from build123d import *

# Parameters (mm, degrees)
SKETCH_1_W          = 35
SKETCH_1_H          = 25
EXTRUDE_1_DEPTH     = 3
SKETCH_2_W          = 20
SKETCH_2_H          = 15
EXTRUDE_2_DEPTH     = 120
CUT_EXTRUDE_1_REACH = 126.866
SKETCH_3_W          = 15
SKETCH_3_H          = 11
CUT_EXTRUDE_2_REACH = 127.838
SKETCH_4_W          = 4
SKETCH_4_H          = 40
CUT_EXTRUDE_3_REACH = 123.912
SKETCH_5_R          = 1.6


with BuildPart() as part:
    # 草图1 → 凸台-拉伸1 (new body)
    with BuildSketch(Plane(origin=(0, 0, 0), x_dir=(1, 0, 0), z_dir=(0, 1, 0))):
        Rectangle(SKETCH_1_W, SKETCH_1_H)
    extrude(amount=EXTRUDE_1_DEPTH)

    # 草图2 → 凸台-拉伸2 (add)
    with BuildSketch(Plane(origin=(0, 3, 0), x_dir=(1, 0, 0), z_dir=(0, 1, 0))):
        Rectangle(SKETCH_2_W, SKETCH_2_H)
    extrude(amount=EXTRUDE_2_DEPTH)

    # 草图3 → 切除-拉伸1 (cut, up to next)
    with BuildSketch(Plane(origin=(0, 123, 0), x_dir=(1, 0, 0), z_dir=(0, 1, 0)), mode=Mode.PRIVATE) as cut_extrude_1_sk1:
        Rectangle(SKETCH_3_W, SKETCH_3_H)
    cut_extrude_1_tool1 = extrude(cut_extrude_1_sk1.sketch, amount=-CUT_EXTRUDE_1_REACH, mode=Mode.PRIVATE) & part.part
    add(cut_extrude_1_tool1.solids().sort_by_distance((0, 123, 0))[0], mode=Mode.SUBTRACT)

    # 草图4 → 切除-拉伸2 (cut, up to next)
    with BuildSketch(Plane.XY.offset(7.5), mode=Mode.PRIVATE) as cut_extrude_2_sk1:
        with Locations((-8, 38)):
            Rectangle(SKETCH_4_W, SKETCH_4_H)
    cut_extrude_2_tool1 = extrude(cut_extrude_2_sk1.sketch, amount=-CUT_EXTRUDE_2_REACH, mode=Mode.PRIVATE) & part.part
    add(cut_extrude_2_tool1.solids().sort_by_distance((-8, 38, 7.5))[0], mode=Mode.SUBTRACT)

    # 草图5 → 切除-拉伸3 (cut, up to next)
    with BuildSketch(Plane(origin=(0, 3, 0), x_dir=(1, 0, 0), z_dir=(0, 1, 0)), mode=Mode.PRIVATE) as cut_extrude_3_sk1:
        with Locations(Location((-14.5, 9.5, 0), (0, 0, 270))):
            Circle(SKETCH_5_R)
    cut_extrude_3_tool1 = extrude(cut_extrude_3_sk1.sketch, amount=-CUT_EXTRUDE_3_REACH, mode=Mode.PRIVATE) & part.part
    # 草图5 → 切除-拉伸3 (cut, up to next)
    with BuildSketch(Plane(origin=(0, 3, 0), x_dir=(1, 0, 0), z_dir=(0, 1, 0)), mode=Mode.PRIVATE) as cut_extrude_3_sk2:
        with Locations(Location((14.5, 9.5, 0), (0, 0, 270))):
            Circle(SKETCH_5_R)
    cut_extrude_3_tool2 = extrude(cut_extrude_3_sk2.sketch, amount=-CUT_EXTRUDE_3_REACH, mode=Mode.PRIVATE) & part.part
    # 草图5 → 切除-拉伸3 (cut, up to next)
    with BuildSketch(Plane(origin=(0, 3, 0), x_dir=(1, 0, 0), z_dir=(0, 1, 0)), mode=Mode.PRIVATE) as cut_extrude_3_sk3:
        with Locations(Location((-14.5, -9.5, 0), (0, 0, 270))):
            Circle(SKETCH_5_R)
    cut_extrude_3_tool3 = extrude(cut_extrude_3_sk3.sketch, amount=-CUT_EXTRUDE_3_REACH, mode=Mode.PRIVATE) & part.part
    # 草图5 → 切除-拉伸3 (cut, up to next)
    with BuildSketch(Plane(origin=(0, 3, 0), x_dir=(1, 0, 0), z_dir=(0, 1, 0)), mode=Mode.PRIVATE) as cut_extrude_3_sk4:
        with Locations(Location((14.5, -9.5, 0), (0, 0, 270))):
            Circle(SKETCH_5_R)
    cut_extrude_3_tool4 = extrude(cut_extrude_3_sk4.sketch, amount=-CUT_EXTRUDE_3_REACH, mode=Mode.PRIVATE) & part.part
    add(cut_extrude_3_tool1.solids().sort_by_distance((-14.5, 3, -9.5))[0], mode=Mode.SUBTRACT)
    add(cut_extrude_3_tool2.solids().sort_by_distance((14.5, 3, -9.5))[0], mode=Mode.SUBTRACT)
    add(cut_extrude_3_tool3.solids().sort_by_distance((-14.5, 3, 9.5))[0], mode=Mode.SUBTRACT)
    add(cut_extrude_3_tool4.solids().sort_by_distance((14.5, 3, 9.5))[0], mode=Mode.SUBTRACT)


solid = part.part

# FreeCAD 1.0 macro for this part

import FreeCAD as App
import Part
import Sketcher
Q = App.Units.Quantity

doc = App.newDocument("Part")
body = doc.addObject("PartDesign::Body", "Body")

sketch1 = body.newObject("Sketcher::SketchObject", "Sketch")
sketch1.AttachmentSupport = (doc.getObject("XZ_Plane"), [""])
sketch1.MapMode = "FlatFace"
sketch1.addGeometry([
    Part.LineSegment(App.Vector(-18, -12, 0), App.Vector(-18, 12, 0)),
    Part.LineSegment(App.Vector(-18, 12, 0), App.Vector(18, 12, 0)),
    Part.LineSegment(App.Vector(18, 12, 0), App.Vector(18, -12, 0)),
    Part.LineSegment(App.Vector(18, -12, 0), App.Vector(-18, -12, 0)),
], False)
sketch1.addConstraint([
    Sketcher.Constraint("Coincident", 0, 2, 1, 1),
    Sketcher.Constraint("Coincident", 1, 2, 2, 1),
    Sketcher.Constraint("Coincident", 2, 2, 3, 1),
    Sketcher.Constraint("Coincident", 3, 2, 0, 1),
    Sketcher.Constraint("Vertical", 0),
    Sketcher.Constraint("Horizontal", 1),
    Sketcher.Constraint("Vertical", 2),
    Sketcher.Constraint("Horizontal", 3),
    Sketcher.Constraint("Symmetric", 0, 2, 2, 2, -1, 1),
    Sketcher.Constraint("DistanceX", 1, 1, 1, 2, Q("35 mm")),
    Sketcher.Constraint("DistanceY", 0, 1, 0, 2, Q("25 mm")),
])
pad1 = body.newObject("PartDesign::Pad", "Pad")
pad1.Profile = sketch1
pad1.Length = 3
pad1.Reversed = True

sketch2 = body.newObject("Sketcher::SketchObject", "Sketch001")
sketch2.AttachmentSupport = (doc.getObject("XZ_Plane"), [""])
sketch2.MapMode = "FlatFace"
sketch2.AttachmentOffset = App.Placement(App.Vector(0, 0, -3), App.Rotation())
sketch2.addGeometry([
    Part.LineSegment(App.Vector(-10, -8, 0), App.Vector(-10, 8, 0)),
    Part.LineSegment(App.Vector(-10, 8, 0), App.Vector(10, 8, 0)),
    Part.LineSegment(App.Vector(10, 8, 0), App.Vector(10, -8, 0)),
    Part.LineSegment(App.Vector(10, -8, 0), App.Vector(-10, -8, 0)),
], False)
sketch2.addConstraint([
    Sketcher.Constraint("Coincident", 0, 2, 1, 1),
    Sketcher.Constraint("Coincident", 1, 2, 2, 1),
    Sketcher.Constraint("Coincident", 2, 2, 3, 1),
    Sketcher.Constraint("Coincident", 3, 2, 0, 1),
    Sketcher.Constraint("Vertical", 0),
    Sketcher.Constraint("Horizontal", 1),
    Sketcher.Constraint("Vertical", 2),
    Sketcher.Constraint("Horizontal", 3),
    Sketcher.Constraint("Symmetric", 0, 2, 2, 2, -1, 1),
    Sketcher.Constraint("DistanceX", 1, 1, 1, 2, Q("20 mm")),
    Sketcher.Constraint("DistanceY", 0, 1, 0, 2, Q("15 mm")),
])
pad2 = body.newObject("PartDesign::Pad", "Pad001")
pad2.Profile = sketch2
pad2.Length = 120
pad2.Reversed = True

sketch3 = body.newObject("Sketcher::SketchObject", "Sketch002")
sketch3.AttachmentSupport = (doc.getObject("XZ_Plane"), [""])
sketch3.MapMode = "FlatFace"
sketch3.AttachmentOffset = App.Placement(App.Vector(0, 0, -123), App.Rotation())
sketch3.addGeometry([
    Part.LineSegment(App.Vector(-8, -6, 0), App.Vector(-8, 6, 0)),
    Part.LineSegment(App.Vector(-8, 6, 0), App.Vector(8, 6, 0)),
    Part.LineSegment(App.Vector(8, 6, 0), App.Vector(8, -6, 0)),
    Part.LineSegment(App.Vector(8, -6, 0), App.Vector(-8, -6, 0)),
], False)
sketch3.addConstraint([
    Sketcher.Constraint("Coincident", 0, 2, 1, 1),
    Sketcher.Constraint("Coincident", 1, 2, 2, 1),
    Sketcher.Constraint("Coincident", 2, 2, 3, 1),
    Sketcher.Constraint("Coincident", 3, 2, 0, 1),
    Sketcher.Constraint("Vertical", 0),
    Sketcher.Constraint("Horizontal", 1),
    Sketcher.Constraint("Vertical", 2),
    Sketcher.Constraint("Horizontal", 3),
    Sketcher.Constraint("Symmetric", 0, 2, 2, 2, -1, 1),
    Sketcher.Constraint("DistanceX", 1, 1, 1, 2, Q("15 mm")),
    Sketcher.Constraint("DistanceY", 0, 1, 0, 2, Q("11 mm")),
])
pocket1 = body.newObject("PartDesign::Pocket", "Pocket")
pocket1.Profile = sketch3
pocket1.Type = "UpToFirst"
pocket1.Reversed = True

sketch4 = body.newObject("Sketcher::SketchObject", "Sketch003")
sketch4.AttachmentSupport = (doc.getObject("XY_Plane"), [""])
sketch4.MapMode = "FlatFace"
sketch4.AttachmentOffset = App.Placement(App.Vector(0, 0, 7.5), App.Rotation())
sketch4.addGeometry([
    Part.LineSegment(App.Vector(-10, 58, 0), App.Vector(-10, 18, 0)),
    Part.LineSegment(App.Vector(-10, 18, 0), App.Vector(-6, 18, 0)),
    Part.LineSegment(App.Vector(-6, 18, 0), App.Vector(-6, 58, 0)),
    Part.LineSegment(App.Vector(-6, 58, 0), App.Vector(-10, 58, 0)),
], False)
sketch4.addConstraint([
    Sketcher.Constraint("Coincident", 0, 2, 1, 1),
    Sketcher.Constraint("Coincident", 1, 2, 2, 1),
    Sketcher.Constraint("Coincident", 2, 2, 3, 1),
    Sketcher.Constraint("Coincident", 3, 2, 0, 1),
    Sketcher.Constraint("Vertical", 0),
    Sketcher.Constraint("Horizontal", 1),
    Sketcher.Constraint("Vertical", 2),
    Sketcher.Constraint("Horizontal", 3),
    Sketcher.Constraint("DistanceX", 1, 1, 1, 2, Q("4 mm")),
    Sketcher.Constraint("DistanceY", 0, 2, 0, 1, Q("40 mm")),
    Sketcher.Constraint("DistanceX", 0, 2, -1, 1, Q("10 mm")),
    Sketcher.Constraint("DistanceY", -1, 1, 0, 2, Q("18 mm")),
])
pocket2 = body.newObject("PartDesign::Pocket", "Pocket001")
pocket2.Profile = sketch4
pocket2.Type = "UpToFirst"

sketch5 = body.newObject("Sketcher::SketchObject", "Sketch004")
sketch5.AttachmentSupport = (doc.getObject("XZ_Plane"), [""])
sketch5.MapMode = "FlatFace"
sketch5.AttachmentOffset = App.Placement(App.Vector(0, 0, -3), App.Rotation())
sketch5.addGeometry(Part.Circle(App.Vector(-14.5, -9.5, 0), App.Vector(0, 0, 1), 1.6), False)
sketch5.addConstraint([
    Sketcher.Constraint("Diameter", 0, Q("3.2 mm")),
    Sketcher.Constraint("DistanceX", 0, 3, -1, 1, Q("14.5 mm")),
    Sketcher.Constraint("DistanceY", 0, 3, -1, 1, Q("9.5 mm")),
])
pocket3 = body.newObject("PartDesign::Pocket", "Pocket002")
pocket3.Profile = sketch5
pocket3.Type = "UpToFirst"
pocket3.Reversed = True

sketch6 = body.newObject("Sketcher::SketchObject", "Sketch005")
sketch6.AttachmentSupport = (doc.getObject("XZ_Plane"), [""])
sketch6.MapMode = "FlatFace"
sketch6.AttachmentOffset = App.Placement(App.Vector(0, 0, -3), App.Rotation())
sketch6.addGeometry(Part.Circle(App.Vector(14.5, -9.5, 0), App.Vector(0, 0, 1), 1.6), False)
sketch6.addConstraint([
    Sketcher.Constraint("Diameter", 0, Q("3.2 mm")),
    Sketcher.Constraint("DistanceX", -1, 1, 0, 3, Q("14.5 mm")),
    Sketcher.Constraint("DistanceY", 0, 3, -1, 1, Q("9.5 mm")),
])
pocket4 = body.newObject("PartDesign::Pocket", "Pocket003")
pocket4.Profile = sketch6
pocket4.Type = "UpToFirst"
pocket4.Reversed = True

sketch7 = body.newObject("Sketcher::SketchObject", "Sketch006")
sketch7.AttachmentSupport = (doc.getObject("XZ_Plane"), [""])
sketch7.MapMode = "FlatFace"
sketch7.AttachmentOffset = App.Placement(App.Vector(0, 0, -3), App.Rotation())
sketch7.addGeometry(Part.Circle(App.Vector(-14.5, 9.5, 0), App.Vector(0, 0, 1), 1.6), False)
sketch7.addConstraint([
    Sketcher.Constraint("Diameter", 0, Q("3.2 mm")),
    Sketcher.Constraint("DistanceX", 0, 3, -1, 1, Q("14.5 mm")),
    Sketcher.Constraint("DistanceY", -1, 1, 0, 3, Q("9.5 mm")),
])
pocket5 = body.newObject("PartDesign::Pocket", "Pocket004")
pocket5.Profile = sketch7
pocket5.Type = "UpToFirst"
pocket5.Reversed = True

sketch8 = body.newObject("Sketcher::SketchObject", "Sketch007")
sketch8.AttachmentSupport = (doc.getObject("XZ_Plane"), [""])
sketch8.MapMode = "FlatFace"
sketch8.AttachmentOffset = App.Placement(App.Vector(0, 0, -3), App.Rotation())
sketch8.addGeometry(Part.Circle(App.Vector(14.5, 9.5, 0), App.Vector(0, 0, 1), 1.6), False)
sketch8.addConstraint([
    Sketcher.Constraint("Diameter", 0, Q("3.2 mm")),
    Sketcher.Constraint("DistanceX", -1, 1, 0, 3, Q("14.5 mm")),
    Sketcher.Constraint("DistanceY", -1, 1, 0, 3, Q("9.5 mm")),
])
pocket6 = body.newObject("PartDesign::Pocket", "Pocket005")
pocket6.Profile = sketch8
pocket6.Type = "UpToFirst"
pocket6.Reversed = True

doc.recompute()
